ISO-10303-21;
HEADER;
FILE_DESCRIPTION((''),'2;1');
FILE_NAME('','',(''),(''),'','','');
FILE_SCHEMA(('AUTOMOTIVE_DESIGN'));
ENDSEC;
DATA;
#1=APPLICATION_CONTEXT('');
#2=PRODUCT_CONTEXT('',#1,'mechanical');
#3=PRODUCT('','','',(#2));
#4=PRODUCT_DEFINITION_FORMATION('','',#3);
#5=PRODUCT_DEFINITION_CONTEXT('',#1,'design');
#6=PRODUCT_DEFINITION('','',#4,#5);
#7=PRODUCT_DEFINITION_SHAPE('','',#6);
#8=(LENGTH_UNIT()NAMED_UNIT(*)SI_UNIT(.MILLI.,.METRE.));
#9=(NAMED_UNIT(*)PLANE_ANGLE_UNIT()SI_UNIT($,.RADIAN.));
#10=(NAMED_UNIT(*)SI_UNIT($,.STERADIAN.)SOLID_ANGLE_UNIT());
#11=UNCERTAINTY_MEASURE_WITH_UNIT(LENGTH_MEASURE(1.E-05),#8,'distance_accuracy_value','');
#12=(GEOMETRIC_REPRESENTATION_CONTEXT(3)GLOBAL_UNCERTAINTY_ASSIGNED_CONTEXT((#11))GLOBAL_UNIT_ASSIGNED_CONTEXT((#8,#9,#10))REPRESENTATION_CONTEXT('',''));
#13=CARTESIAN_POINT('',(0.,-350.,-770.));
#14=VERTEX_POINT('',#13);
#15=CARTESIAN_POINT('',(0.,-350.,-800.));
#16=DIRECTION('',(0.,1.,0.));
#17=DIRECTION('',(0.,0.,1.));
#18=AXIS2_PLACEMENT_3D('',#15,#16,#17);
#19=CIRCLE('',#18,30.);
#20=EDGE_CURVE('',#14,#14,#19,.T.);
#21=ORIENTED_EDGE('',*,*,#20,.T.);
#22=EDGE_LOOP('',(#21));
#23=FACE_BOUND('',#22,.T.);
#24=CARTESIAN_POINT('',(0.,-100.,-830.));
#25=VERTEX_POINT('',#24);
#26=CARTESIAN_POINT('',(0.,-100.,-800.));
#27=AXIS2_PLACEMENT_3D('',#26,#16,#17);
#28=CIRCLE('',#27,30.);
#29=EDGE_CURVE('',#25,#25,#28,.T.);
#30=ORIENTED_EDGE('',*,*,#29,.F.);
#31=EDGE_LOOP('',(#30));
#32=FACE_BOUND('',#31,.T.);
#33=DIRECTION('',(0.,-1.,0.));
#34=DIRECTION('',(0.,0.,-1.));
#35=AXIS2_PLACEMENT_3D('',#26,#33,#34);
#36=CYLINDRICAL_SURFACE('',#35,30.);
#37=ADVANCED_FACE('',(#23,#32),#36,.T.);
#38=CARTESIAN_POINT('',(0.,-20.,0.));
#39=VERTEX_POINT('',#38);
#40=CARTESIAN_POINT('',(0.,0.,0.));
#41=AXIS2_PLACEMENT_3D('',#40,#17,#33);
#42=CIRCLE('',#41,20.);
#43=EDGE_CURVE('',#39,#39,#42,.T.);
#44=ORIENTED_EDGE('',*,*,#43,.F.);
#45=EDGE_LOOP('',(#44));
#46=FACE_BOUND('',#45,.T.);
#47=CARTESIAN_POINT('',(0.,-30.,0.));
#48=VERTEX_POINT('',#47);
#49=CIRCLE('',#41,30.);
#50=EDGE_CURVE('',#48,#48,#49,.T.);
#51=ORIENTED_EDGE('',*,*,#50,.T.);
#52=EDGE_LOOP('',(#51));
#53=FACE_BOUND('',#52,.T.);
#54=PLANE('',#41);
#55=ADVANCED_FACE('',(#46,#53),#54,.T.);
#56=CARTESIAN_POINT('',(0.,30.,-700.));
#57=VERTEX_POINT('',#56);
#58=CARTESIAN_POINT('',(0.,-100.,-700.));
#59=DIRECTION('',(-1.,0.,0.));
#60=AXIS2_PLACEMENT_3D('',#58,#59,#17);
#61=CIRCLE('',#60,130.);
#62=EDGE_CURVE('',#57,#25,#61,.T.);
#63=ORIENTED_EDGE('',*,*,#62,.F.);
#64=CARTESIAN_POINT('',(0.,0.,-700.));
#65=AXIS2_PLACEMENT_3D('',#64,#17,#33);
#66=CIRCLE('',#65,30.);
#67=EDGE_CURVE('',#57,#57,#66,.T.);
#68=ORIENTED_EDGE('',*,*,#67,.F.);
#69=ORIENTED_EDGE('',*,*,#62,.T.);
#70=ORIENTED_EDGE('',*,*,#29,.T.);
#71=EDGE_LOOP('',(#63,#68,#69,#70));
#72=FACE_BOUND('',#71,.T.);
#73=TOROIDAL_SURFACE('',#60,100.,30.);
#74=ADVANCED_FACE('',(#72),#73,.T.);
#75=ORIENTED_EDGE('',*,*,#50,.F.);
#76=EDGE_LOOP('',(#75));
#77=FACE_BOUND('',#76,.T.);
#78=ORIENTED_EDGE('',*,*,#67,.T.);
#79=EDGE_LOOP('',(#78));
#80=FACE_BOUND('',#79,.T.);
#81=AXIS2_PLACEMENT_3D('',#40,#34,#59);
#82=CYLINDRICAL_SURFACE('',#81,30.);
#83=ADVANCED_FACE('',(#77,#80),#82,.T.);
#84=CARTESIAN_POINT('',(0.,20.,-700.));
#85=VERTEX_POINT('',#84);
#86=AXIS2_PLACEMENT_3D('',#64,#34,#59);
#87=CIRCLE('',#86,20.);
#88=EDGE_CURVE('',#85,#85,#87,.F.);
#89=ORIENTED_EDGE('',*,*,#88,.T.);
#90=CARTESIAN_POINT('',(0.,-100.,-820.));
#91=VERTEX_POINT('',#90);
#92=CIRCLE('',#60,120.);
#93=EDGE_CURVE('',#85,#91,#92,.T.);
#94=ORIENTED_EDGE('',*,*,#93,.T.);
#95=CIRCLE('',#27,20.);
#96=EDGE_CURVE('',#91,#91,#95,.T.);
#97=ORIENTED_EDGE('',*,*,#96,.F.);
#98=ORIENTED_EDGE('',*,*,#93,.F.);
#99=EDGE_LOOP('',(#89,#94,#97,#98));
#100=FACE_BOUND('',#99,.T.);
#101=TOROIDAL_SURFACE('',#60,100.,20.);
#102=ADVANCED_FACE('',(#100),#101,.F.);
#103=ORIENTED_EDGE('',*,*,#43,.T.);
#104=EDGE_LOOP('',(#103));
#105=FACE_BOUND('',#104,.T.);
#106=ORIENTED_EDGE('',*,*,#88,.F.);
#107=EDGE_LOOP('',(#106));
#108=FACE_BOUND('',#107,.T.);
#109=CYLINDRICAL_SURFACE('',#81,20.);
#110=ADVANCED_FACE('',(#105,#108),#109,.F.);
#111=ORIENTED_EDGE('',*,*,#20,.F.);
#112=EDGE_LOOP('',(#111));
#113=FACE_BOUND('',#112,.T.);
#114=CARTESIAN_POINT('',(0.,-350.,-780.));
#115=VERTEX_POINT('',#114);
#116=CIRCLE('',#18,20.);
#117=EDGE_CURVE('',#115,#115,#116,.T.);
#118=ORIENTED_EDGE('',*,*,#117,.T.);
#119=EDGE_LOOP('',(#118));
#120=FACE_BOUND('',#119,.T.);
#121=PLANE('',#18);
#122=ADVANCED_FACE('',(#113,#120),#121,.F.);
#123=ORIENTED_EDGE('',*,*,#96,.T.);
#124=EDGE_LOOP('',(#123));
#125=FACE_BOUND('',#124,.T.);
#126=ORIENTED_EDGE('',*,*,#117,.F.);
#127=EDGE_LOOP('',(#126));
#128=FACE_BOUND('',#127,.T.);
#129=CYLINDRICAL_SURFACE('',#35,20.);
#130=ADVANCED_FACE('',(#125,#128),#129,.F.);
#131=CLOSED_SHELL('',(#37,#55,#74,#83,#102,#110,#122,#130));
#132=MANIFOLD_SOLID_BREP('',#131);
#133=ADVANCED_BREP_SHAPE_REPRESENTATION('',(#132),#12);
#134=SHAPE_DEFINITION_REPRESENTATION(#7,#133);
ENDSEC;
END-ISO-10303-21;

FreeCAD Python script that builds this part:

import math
import FreeCAD as App
import Part
import Sketcher
from FreeCAD import Vector
Q = App.Units.Quantity

doc = App.newDocument("Part")
body = doc.addObject("PartDesign::Body", "Body")

# Sketch on XY plane
sketch1 = body.newObject("Sketcher::SketchObject", "Sketch")
sketch1.AttachmentSupport = (doc.getObject("XY_Plane"), [""])
sketch1.MapMode = "FlatFace"
sketch1.addGeometry([
    Part.Circle(Vector(0, 0, 0), Vector(0, 0, 1), 30),
    Part.Circle(Vector(0, 0, 0), Vector(0, 0, 1), 20),
], False)
sketch1.addConstraint([
    Sketcher.Constraint("Coincident", 0, 3, -1, 1),
    Sketcher.Constraint("Coincident", 1, 3, -1, 1),
    Sketcher.Constraint("Diameter", 0, Q("60 mm")),
    Sketcher.Constraint("Diameter", 1, Q("40 mm")),
])

# Sketch on YZ plane
sketch2 = body.newObject("Sketcher::SketchObject", "Sketch001")
sketch2.AttachmentSupport = (doc.getObject("YZ_Plane"), [""])
sketch2.MapMode = "FlatFace"
sketch2.addGeometry([
    Part.LineSegment(Vector(0, 0, 0), Vector(0, -700, 0)),
    Part.ArcOfCircle(Part.Circle(Vector(-100, -700, 0), Vector(0, 0, 1), 100), math.radians(-90), math.radians(0)),
    Part.LineSegment(Vector(-100, -800, 0), Vector(-350, -800, 0)),
], False)
sketch2.addConstraint([
    Sketcher.Constraint("Tangent", 0, 2, 1, 2),
    Sketcher.Constraint("Tangent", 1, 1, 2, 1),
    Sketcher.Constraint("Vertical", 0),
    Sketcher.Constraint("Horizontal", 2),
    Sketcher.Constraint("Coincident", 0, 1, -1, 1),
    Sketcher.Constraint("Radius", 1, Q("100 mm")),
    Sketcher.Constraint("DistanceX", 2, 2, 2, 1, Q("250 mm")),
    Sketcher.Constraint("DistanceY", 0, 2, 0, 1, Q("700 mm")),
])
doc.recompute()

additivepipe = body.newObject("PartDesign::AdditivePipe", "AdditivePipe")
additivepipe.Profile = sketch1
additivepipe.Spine = (sketch2, ["Edge1", "Edge2", "Edge3"])

doc.recompute()
